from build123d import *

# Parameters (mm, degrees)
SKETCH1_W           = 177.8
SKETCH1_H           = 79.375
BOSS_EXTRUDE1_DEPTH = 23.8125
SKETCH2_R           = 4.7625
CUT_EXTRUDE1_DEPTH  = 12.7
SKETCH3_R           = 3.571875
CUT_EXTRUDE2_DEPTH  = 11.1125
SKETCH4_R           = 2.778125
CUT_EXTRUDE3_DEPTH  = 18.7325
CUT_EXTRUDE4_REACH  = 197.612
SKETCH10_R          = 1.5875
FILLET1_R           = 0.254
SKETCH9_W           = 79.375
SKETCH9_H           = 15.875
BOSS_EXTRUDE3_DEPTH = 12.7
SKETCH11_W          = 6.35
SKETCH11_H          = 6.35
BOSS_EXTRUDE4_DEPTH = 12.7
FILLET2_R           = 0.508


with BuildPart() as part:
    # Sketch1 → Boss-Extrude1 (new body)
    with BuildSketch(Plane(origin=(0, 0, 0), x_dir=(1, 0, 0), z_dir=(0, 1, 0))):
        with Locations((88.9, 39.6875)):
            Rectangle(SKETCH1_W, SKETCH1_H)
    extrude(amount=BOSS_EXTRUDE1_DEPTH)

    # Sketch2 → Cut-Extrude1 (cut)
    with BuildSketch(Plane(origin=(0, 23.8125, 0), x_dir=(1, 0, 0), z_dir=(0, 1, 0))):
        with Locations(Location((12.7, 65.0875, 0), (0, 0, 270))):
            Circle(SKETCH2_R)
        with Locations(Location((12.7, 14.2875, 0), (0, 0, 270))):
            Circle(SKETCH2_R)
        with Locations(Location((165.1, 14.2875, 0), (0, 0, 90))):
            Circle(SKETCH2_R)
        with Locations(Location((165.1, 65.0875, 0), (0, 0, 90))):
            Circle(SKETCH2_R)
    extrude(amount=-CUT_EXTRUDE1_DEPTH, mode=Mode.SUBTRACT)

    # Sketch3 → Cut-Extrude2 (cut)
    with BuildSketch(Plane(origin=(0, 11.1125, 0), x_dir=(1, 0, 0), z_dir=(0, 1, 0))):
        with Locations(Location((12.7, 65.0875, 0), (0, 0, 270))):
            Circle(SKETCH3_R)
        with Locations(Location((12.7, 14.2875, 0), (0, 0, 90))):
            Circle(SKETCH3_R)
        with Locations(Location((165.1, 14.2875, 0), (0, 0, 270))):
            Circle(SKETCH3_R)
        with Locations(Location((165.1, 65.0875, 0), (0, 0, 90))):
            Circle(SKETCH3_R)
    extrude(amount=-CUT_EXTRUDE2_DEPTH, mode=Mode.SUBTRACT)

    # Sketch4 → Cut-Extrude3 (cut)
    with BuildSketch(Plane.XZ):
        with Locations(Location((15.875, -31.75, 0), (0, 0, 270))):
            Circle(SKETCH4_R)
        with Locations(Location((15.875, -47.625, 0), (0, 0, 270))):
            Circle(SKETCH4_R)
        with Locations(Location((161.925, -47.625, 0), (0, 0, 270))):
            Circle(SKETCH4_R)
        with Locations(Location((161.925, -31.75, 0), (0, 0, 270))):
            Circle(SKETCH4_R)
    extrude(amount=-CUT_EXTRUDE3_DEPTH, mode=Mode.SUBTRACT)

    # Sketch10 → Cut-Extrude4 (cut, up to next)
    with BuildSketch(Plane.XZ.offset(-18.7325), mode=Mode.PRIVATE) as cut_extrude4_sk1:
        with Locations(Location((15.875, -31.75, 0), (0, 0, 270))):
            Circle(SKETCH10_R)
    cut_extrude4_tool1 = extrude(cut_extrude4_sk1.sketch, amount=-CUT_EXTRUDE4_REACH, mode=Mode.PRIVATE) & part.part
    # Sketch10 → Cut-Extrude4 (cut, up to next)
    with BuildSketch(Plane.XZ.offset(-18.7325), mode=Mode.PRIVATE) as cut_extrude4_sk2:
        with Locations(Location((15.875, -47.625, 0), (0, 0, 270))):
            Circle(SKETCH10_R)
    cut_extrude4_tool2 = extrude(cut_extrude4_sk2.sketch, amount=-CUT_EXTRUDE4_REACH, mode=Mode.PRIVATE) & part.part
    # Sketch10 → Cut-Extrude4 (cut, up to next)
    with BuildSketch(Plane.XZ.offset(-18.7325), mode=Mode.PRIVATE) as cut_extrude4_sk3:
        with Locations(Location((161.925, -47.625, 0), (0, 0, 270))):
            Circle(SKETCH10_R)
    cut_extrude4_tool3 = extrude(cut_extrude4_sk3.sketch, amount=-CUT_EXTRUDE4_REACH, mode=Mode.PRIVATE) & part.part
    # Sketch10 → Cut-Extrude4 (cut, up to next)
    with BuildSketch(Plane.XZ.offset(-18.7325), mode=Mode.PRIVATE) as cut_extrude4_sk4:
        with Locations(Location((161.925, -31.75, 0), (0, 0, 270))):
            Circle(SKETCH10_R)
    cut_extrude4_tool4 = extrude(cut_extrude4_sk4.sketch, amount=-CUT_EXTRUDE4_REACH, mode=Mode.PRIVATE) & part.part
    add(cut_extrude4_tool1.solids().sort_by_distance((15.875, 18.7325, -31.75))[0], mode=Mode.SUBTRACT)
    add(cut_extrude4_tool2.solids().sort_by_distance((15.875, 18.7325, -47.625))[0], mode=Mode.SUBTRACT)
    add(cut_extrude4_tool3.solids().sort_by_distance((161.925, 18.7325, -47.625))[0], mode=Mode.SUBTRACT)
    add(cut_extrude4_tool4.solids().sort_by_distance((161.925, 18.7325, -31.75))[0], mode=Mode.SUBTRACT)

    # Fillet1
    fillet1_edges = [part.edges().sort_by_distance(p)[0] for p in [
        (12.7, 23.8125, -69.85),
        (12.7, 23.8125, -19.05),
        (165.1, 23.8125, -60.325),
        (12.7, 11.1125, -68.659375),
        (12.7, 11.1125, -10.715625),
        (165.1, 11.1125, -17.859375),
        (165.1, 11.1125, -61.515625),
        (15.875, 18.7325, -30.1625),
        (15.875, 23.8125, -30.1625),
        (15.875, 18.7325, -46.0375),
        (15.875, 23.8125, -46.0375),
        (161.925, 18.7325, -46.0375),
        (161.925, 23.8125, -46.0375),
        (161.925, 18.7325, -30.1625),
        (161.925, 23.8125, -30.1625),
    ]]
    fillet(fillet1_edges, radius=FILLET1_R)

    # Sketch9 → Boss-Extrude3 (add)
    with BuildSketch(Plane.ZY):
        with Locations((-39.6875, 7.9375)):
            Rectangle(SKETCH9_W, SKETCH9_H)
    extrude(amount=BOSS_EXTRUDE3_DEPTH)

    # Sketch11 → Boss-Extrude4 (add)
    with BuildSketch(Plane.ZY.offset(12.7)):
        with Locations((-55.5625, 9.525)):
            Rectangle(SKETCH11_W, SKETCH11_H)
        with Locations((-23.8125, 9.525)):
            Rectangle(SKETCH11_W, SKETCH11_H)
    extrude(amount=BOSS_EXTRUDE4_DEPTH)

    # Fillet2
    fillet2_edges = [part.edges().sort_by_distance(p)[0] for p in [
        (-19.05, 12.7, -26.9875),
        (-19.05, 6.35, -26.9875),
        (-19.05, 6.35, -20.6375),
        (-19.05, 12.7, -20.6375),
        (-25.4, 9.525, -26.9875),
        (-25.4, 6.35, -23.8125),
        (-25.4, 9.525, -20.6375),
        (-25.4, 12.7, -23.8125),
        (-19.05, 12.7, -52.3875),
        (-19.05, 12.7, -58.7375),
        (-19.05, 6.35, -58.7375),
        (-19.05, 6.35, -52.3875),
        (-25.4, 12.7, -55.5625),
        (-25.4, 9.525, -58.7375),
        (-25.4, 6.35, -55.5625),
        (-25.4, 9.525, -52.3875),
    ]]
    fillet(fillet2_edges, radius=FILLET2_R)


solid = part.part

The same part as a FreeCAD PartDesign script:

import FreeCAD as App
import Part
import Sketcher
Q = App.Units.Quantity


def edges_at(feature, points):
    """Names of the edges that pass closest to the given points."""
    edges = feature.Shape.Edges
    near = lambda p: min(range(len(edges)), key=lambda i: edges[i].distToShape(Part.Vertex(*p))[0])
    return sorted({f"Edge{near(p) + 1}" for p in points})


def add_polygon(sketch, points):
    """Adds a closed chain of lines whose ends are joined by coincident constraints."""
    first, n = sketch.GeometryCount, len(points)
    for a, b in zip(points, points[1:] + points[:1]):
        sketch.addGeometry(Part.LineSegment(App.Vector(*a, 0), App.Vector(*b, 0)), False)
    for i in range(n):
        sketch.addConstraint(Sketcher.Constraint("Coincident", first + i, 2, first + (i + 1) % n, 1))

doc = App.newDocument("Part")
body = doc.addObject("PartDesign::Body", "Body")

# Sketch on XZ plane
sketch1 = body.newObject("Sketcher::SketchObject", "Sketch")
sketch1.AttachmentSupport = (doc.getObject("XZ_Plane"), [""])
sketch1.MapMode = "FlatFace"
add_polygon(sketch1, [(0, -79), (0, 0), (178, 0), (178, -79)])  # lines 0-3
sketch1.addConstraint([
    Sketcher.Constraint("Vertical", 0),
    Sketcher.Constraint("Horizontal", 1),
    Sketcher.Constraint("Vertical", 2),
    Sketcher.Constraint("Horizontal", 3),
    Sketcher.Constraint("Coincident", 0, 2, -1, 1),
    Sketcher.Constraint("DistanceX", 1, 1, 1, 2, Q("7 in")),
    Sketcher.Constraint("DistanceY", 0, 1, 0, 2, Q("3.125 in")),
])
pad1 = body.newObject("PartDesign::Pad", "Pad")
pad1.Profile = sketch1
pad1.Length = Q("0.9375 in")
pad1.Reversed = True

# Sketch on XZ plane
sketch2 = body.newObject("Sketcher::SketchObject", "Sketch001")
sketch2.AttachmentSupport = (doc.getObject("XZ_Plane"), [""])
sketch2.MapMode = "FlatFace"
sketch2.AttachmentOffset = App.Placement(App.Vector(0, 0, -0.9375 * 25.4), App.Rotation())
sketch2.addGeometry([
    Part.Circle(App.Vector(12.7, -65.1, 0), App.Vector(0, 0, 1), 4.8),
    Part.Circle(App.Vector(12.7, -14.3, 0), App.Vector(0, 0, 1), 4.8),
    Part.Circle(App.Vector(165.1, -14.3, 0), App.Vector(0, 0, 1), 4.8),
    Part.Circle(App.Vector(165.1, -65.1, 0), App.Vector(0, 0, 1), 4.8),
], False)
sketch2.addConstraint([
    Sketcher.Constraint("Equal", 0, 1),
    Sketcher.Constraint("Equal", 1, 2),
    Sketcher.Constraint("Equal", 2, 3),
    Sketcher.Constraint("Horizontal", 1, 3, 2, 3),
    Sketcher.Constraint("Horizontal", 0, 3, 3, 3),
    Sketcher.Constraint("Vertical", 0, 3, 1, 3),
    Sketcher.Constraint("Vertical", 2, 3, 3, 3),
    Sketcher.Constraint("Diameter", 0, Q("0.375 in")),
    Sketcher.Constraint("DistanceY", 0, 3, 1, 3, Q("2 in")),
    Sketcher.Constraint("DistanceX", 1, 3, 2, 3, Q("6 in")),
    Sketcher.Constraint("DistanceX", -1, 1, 0, 3, Q("0.5 in")),
    Sketcher.Constraint("DistanceY", 0, 3, -1, 1, Q("2.5625 in")),
])
pocket1 = body.newObject("PartDesign::Pocket", "Pocket")
pocket1.Profile = sketch2
pocket1.Length = Q("0.5 in")
pocket1.Reversed = True

# Sketch on XZ plane
sketch3 = body.newObject("Sketcher::SketchObject", "Sketch002")
sketch3.AttachmentSupport = (doc.getObject("XZ_Plane"), [""])
sketch3.MapMode = "FlatFace"
sketch3.AttachmentOffset = App.Placement(App.Vector(0, 0, -0.4375 * 25.4), App.Rotation())
sketch3.addGeometry([
    Part.Circle(App.Vector(12.7, -65.1, 0), App.Vector(0, 0, 1), 3.6),
    Part.Circle(App.Vector(12.7, -14.3, 0), App.Vector(0, 0, 1), 3.6),
    Part.Circle(App.Vector(165.1, -14.3, 0), App.Vector(0, 0, 1), 3.6),
    Part.Circle(App.Vector(165.1, -65.1, 0), App.Vector(0, 0, 1), 3.6),
], False)
sketch3.addConstraint([
    Sketcher.Constraint("Equal", 0, 1),
    Sketcher.Constraint("Equal", 1, 2),
    Sketcher.Constraint("Equal", 2, 3),
    Sketcher.Constraint("Horizontal", 1, 3, 2, 3),
    Sketcher.Constraint("Horizontal", 0, 3, 3, 3),
    Sketcher.Constraint("Vertical", 0, 3, 1, 3),
    Sketcher.Constraint("Vertical", 2, 3, 3, 3),
    Sketcher.Constraint("Diameter", 0, Q("0.28125 in")),
    Sketcher.Constraint("DistanceY", 0, 3, 1, 3, Q("2 in")),
    Sketcher.Constraint("DistanceX", 1, 3, 2, 3, Q("6 in")),
    Sketcher.Constraint("DistanceX", -1, 1, 0, 3, Q("0.5 in")),
    Sketcher.Constraint("DistanceY", 0, 3, -1, 1, Q("2.5625 in")),
])
pocket2 = body.newObject("PartDesign::Pocket", "Pocket001")
pocket2.Profile = sketch3
pocket2.Length = Q("0.4375 in")
pocket2.Reversed = True

# Sketch on XZ plane
sketch4 = body.newObject("Sketcher::SketchObject", "Sketch003")
sketch4.AttachmentSupport = (doc.getObject("XZ_Plane"), [""])
sketch4.MapMode = "FlatFace"
sketch4.addGeometry([
    Part.Circle(App.Vector(15.9, -31.8, 0), App.Vector(0, 0, 1), 2.8),
    Part.Circle(App.Vector(15.9, -47.6, 0), App.Vector(0, 0, 1), 2.8),
    Part.Circle(App.Vector(161.9, -47.6, 0), App.Vector(0, 0, 1), 2.8),
    Part.Circle(App.Vector(161.9, -31.8, 0), App.Vector(0, 0, 1), 2.8),
], False)
sketch4.addConstraint([
    Sketcher.Constraint("Equal", 0, 1),
    Sketcher.Constraint("Equal", 1, 2),
    Sketcher.Constraint("Equal", 2, 3),
    Sketcher.Constraint("Horizontal", 1, 3, 2, 3),
    Sketcher.Constraint("Horizontal", 0, 3, 3, 3),
    Sketcher.Constraint("Vertical", 0, 3, 1, 3),
    Sketcher.Constraint("Vertical", 2, 3, 3, 3),
    Sketcher.Constraint("Diameter", 0, Q("0.21875 in")),
    Sketcher.Constraint("DistanceY", 0, 3, -1, 1, Q("1.25 in")),
    Sketcher.Constraint("DistanceX", 1, 3, 2, 3, Q("5.75 in")),
    Sketcher.Constraint("DistanceX", -1, 1, 0, 3, Q("0.625 in")),
    Sketcher.Constraint("DistanceY", 1, 3, -1, 1, Q("1.875 in")),
])
pocket3 = body.newObject("PartDesign::Pocket", "Pocket002")
pocket3.Profile = sketch4
pocket3.Length = Q("0.7375 in")

# Sketch on XZ plane
sketch5 = body.newObject("Sketcher::SketchObject", "Sketch004")
sketch5.AttachmentSupport = (doc.getObject("XZ_Plane"), [""])
sketch5.MapMode = "FlatFace"
sketch5.AttachmentOffset = App.Placement(App.Vector(0, 0, -0.7375 * 25.4), App.Rotation())
sketch5.addGeometry(Part.Circle(App.Vector(15.9, -31.8, 0), App.Vector(0, 0, 1), 1.6), False)
sketch5.addConstraint([
    Sketcher.Constraint("Diameter", 0, Q("0.125 in")),
    Sketcher.Constraint("DistanceY", 0, 3, -1, 1, Q("1.25 in")),
    Sketcher.Constraint("DistanceX", -1, 1, 0, 3, Q("0.625 in")),
])
pocket4 = body.newObject("PartDesign::Pocket", "Pocket003")
pocket4.Profile = sketch5
pocket4.Type = "UpToFirst"

# Sketch on XZ plane
sketch6 = body.newObject("Sketcher::SketchObject", "Sketch005")
sketch6.AttachmentSupport = (doc.getObject("XZ_Plane"), [""])
sketch6.MapMode = "FlatFace"
sketch6.AttachmentOffset = App.Placement(App.Vector(0, 0, -0.7375 * 25.4), App.Rotation())
sketch6.addGeometry(Part.Circle(App.Vector(15.9, -47.6, 0), App.Vector(0, 0, 1), 1.6), False)
sketch6.addConstraint([
    Sketcher.Constraint("Diameter", 0, Q("0.125 in")),
    Sketcher.Constraint("DistanceX", -1, 1, 0, 3, Q("0.625 in")),
    Sketcher.Constraint("DistanceY", 0, 3, -1, 1, Q("1.875 in")),
])
pocket5 = body.newObject("PartDesign::Pocket", "Pocket004")
pocket5.Profile = sketch6
pocket5.Type = "UpToFirst"

# Sketch on XZ plane
sketch7 = body.newObject("Sketcher::SketchObject", "Sketch006")
sketch7.AttachmentSupport = (doc.getObject("XZ_Plane"), [""])
sketch7.MapMode = "FlatFace"
sketch7.AttachmentOffset = App.Placement(App.Vector(0, 0, -0.7375 * 25.4), App.Rotation())
sketch7.addGeometry(Part.Circle(App.Vector(161.9, -47.6, 0), App.Vector(0, 0, 1), 1.6), False)
sketch7.addConstraint([
    Sketcher.Constraint("Diameter", 0, Q("0.125 in")),
    Sketcher.Constraint("DistanceX", -1, 1, 0, 3, Q("6.375 in")),
    Sketcher.Constraint("DistanceY", 0, 3, -1, 1, Q("1.875 in")),
])
pocket6 = body.newObject("PartDesign::Pocket", "Pocket005")
pocket6.Profile = sketch7
pocket6.Type = "UpToFirst"

# Sketch on XZ plane
sketch8 = body.newObject("Sketcher::SketchObject", "Sketch007")
sketch8.AttachmentSupport = (doc.getObject("XZ_Plane"), [""])
sketch8.MapMode = "FlatFace"
sketch8.AttachmentOffset = App.Placement(App.Vector(0, 0, -0.7375 * 25.4), App.Rotation())
sketch8.addGeometry(Part.Circle(App.Vector(161.9, -31.8, 0), App.Vector(0, 0, 1), 1.6), False)
sketch8.addConstraint([
    Sketcher.Constraint("Diameter", 0, Q("0.125 in")),
    Sketcher.Constraint("DistanceY", 0, 3, -1, 1, Q("1.25 in")),
    Sketcher.Constraint("DistanceX", -1, 1, 0, 3, Q("6.375 in")),
])
pocket7 = body.newObject("PartDesign::Pocket", "Pocket006")
pocket7.Profile = sketch8
pocket7.Type = "UpToFirst"
doc.recompute()

fillet = body.newObject("PartDesign::Fillet", "Fillet")
fillet.Base = (pocket7, edges_at(pocket7, [
    (12.7, 23.812, -69.85),
    (12.7, 23.812, -19.05),
    (165.1, 23.812, -60.325),
    (12.7, 11.113, -68.659),
    (12.7, 11.113, -10.716),
    (165.1, 11.113, -17.859),
    (165.1, 11.113, -61.516),
    (15.875, 18.733, -30.163),
    (15.875, 23.812, -30.163),
    (15.875, 18.733, -46.038),
    (15.875, 23.812, -46.038),
    (161.925, 18.733, -46.038),
    (161.925, 23.812, -46.038),
    (161.925, 18.733, -30.163),
    (161.925, 23.812, -30.163),
]))
fillet.Radius = Q("0.01 in")

# Sketch on YZ plane
sketch9 = body.newObject("Sketcher::SketchObject", "Sketch008")
sketch9.AttachmentSupport = (doc.getObject("YZ_Plane"), [""])
sketch9.MapMode = "FlatFace"
add_polygon(sketch9, [(16, -79), (0, -79), (0, 0), (16, 0)])  # lines 0-3
sketch9.addConstraint([
    Sketcher.Constraint("Horizontal", 0),
    Sketcher.Constraint("Vertical", 1),
    Sketcher.Constraint("Horizontal", 2),
    Sketcher.Constraint("Vertical", 3),
    Sketcher.Constraint("Coincident", 1, 2, -1, 1),
    Sketcher.Constraint("DistanceX", 0, 2, 0, 1, Q("0.625 in")),
    Sketcher.Constraint("DistanceY", 1, 1, 1, 2, Q("3.125 in")),
])
pad2 = body.newObject("PartDesign::Pad", "Pad001")
pad2.Profile = sketch9
pad2.Length = Q("0.5 in")
pad2.Reversed = True

# Sketch on YZ plane
sketch10 = body.newObject("Sketcher::SketchObject", "Sketch009")
sketch10.AttachmentSupport = (doc.getObject("YZ_Plane"), [""])
sketch10.MapMode = "FlatFace"
sketch10.AttachmentOffset = App.Placement(App.Vector(0, 0, -0.5 * 25.4), App.Rotation())
add_polygon(sketch10, [(13, -59), (6, -59), (6, -52), (13, -52)])  # lines 0-3
add_polygon(sketch10, [(13, -27), (6, -27), (6, -21), (13, -21)])  # lines 4-7
sketch10.addConstraint([
    Sketcher.Constraint("Horizontal", 0),
    Sketcher.Constraint("Vertical", 1),
    Sketcher.Constraint("Horizontal", 2),
    Sketcher.Constraint("Vertical", 3),
    Sketcher.Constraint("Horizontal", 4),
    Sketcher.Constraint("Vertical", 5),
    Sketcher.Constraint("Horizontal", 6),
    Sketcher.Constraint("Vertical", 7),
    Sketcher.Constraint("Vertical", 1, 2, 4, 2),
    Sketcher.Constraint("Vertical", 3, 2, 6, 2),
    Sketcher.Constraint("Equal", 6, 1),
    Sketcher.Constraint("Equal", 3, 5),
    Sketcher.Constraint("DistanceY", 1, 2, 4, 2, Q("1 in")),
    Sketcher.Constraint("DistanceX", 0, 2, 0, 1, Q("0.25 in")),
    Sketcher.Constraint("DistanceX", -1, 1, 2, 2, Q("0.5 in")),
    Sketcher.Constraint("DistanceY", 0, 2, -1, 1, Q("2.3125 in")),
])
pad3 = body.newObject("PartDesign::Pad", "Pad002")
pad3.Profile = sketch10
pad3.Length = Q("0.5 in")
pad3.Reversed = True
doc.recompute()

fillet2 = body.newObject("PartDesign::Fillet", "Fillet001")
fillet2.Base = (pad3, edges_at(pad3, [
    (-19.05, 12.7, -26.988),
    (-19.05, 6.35, -26.988),
    (-19.05, 6.35, -20.637),
    (-19.05, 12.7, -20.637),
    (-25.4, 9.525, -26.988),
    (-25.4, 6.35, -23.812),
    (-25.4, 9.525, -20.637),
    (-25.4, 12.7, -23.812),
    (-19.05, 12.7, -52.388),
    (-19.05, 12.7, -58.737),
    (-19.05, 6.35, -58.737),
    (-19.05, 6.35, -52.388),
    (-25.4, 12.7, -55.562),
    (-25.4, 9.525, -58.737),
    (-25.4, 6.35, -55.562),
    (-25.4, 9.525, -52.388),
]))
fillet2.Radius = Q("0.02 in")

doc.recompute()
